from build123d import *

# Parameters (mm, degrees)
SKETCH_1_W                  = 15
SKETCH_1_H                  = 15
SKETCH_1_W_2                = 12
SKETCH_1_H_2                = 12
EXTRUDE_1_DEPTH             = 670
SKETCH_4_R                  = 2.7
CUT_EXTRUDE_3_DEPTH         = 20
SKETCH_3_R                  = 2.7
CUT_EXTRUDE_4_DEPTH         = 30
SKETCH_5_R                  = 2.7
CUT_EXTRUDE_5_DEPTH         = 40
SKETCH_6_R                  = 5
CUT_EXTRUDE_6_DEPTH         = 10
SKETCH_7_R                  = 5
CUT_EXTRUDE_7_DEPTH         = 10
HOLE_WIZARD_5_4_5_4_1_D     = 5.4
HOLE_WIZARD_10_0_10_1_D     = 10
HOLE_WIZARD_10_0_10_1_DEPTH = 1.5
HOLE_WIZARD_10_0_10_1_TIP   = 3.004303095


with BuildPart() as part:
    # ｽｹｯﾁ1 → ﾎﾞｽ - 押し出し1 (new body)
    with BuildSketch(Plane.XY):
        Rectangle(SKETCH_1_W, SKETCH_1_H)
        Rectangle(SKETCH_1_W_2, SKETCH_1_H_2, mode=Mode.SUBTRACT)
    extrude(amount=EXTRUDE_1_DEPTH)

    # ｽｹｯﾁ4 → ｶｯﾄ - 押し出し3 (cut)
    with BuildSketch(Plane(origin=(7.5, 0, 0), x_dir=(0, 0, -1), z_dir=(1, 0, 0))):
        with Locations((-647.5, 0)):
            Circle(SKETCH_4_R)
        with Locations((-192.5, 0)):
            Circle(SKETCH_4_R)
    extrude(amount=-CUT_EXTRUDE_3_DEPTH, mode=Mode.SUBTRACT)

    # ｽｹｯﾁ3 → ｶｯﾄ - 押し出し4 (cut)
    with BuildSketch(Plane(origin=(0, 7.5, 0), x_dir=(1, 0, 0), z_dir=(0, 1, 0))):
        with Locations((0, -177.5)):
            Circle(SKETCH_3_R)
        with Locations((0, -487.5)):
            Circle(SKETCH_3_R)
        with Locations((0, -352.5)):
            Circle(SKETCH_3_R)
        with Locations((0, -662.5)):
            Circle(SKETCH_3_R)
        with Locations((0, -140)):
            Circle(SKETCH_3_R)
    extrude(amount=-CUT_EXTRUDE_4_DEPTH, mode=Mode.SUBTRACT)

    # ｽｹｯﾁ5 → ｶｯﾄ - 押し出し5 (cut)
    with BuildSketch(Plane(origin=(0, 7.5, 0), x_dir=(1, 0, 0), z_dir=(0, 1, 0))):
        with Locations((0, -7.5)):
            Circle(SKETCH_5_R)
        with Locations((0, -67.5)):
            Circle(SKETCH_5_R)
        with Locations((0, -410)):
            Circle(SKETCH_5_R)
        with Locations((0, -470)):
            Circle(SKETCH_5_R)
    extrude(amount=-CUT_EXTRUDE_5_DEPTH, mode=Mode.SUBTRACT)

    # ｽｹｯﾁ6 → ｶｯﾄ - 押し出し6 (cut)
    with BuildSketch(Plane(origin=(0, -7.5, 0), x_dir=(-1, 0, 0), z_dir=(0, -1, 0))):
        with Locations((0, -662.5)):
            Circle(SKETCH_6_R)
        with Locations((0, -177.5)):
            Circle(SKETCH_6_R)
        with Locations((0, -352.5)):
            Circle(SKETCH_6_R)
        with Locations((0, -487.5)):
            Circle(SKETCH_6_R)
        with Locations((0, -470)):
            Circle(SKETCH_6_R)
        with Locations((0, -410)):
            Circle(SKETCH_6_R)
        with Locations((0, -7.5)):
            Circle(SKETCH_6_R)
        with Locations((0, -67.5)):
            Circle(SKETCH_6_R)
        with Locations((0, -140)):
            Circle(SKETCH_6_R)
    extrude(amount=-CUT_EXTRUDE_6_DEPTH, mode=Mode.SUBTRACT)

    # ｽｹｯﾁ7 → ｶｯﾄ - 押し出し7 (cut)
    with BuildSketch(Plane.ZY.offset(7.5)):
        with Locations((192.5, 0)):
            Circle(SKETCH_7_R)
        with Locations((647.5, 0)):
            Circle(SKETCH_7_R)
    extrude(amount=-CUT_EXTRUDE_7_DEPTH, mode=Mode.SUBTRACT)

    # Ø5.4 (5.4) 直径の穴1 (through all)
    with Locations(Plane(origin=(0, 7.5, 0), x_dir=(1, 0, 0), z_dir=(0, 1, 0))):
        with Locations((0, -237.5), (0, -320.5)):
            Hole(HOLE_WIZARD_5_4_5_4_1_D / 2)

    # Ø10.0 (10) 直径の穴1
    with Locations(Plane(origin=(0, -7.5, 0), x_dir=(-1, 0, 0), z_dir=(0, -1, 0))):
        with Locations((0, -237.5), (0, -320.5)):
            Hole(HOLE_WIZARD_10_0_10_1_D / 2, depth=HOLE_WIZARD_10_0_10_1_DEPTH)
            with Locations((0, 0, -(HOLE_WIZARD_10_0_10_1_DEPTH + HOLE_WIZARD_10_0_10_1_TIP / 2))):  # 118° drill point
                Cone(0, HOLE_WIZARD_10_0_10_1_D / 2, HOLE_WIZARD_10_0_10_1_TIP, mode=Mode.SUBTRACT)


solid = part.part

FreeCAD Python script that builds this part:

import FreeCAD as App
import Part
import Sketcher
Q = App.Units.Quantity

doc = App.newDocument("Part")
body = doc.addObject("PartDesign::Body", "Body")

# Sketch on XY plane
sketch1 = body.newObject("Sketcher::SketchObject", "Sketch")
sketch1.AttachmentSupport = (doc.getObject("XY_Plane"), [""])
sketch1.MapMode = "FlatFace"
sketch1.addGeometry(Part.LineSegment(App.Vector(-7.5, 7.5, 0), App.Vector(-7.5, -7.5, 0)), False)
sketch1.addGeometry(Part.LineSegment(App.Vector(-7.5, -7.5, 0), App.Vector(7.5, -7.5, 0)), False)
sketch1.addGeometry(Part.LineSegment(App.Vector(7.5, -7.5, 0), App.Vector(7.5, 7.5, 0)), False)
sketch1.addGeometry(Part.LineSegment(App.Vector(7.5, 7.5, 0), App.Vector(-7.5, 7.5, 0)), False)
sketch1.addGeometry(Part.LineSegment(App.Vector(6, -6, 0), App.Vector(-6, -6, 0)), False)
sketch1.addGeometry(Part.LineSegment(App.Vector(-6, -6, 0), App.Vector(-6, 6, 0)), False)
sketch1.addGeometry(Part.LineSegment(App.Vector(-6, 6, 0), App.Vector(6, 6, 0)), False)
sketch1.addGeometry(Part.LineSegment(App.Vector(6, 6, 0), App.Vector(6, -6, 0)), False)
sketch1.addConstraint(Sketcher.Constraint("Coincident", 0, 2, 1, 1))
sketch1.addConstraint(Sketcher.Constraint("Coincident", 1, 2, 2, 1))
sketch1.addConstraint(Sketcher.Constraint("Coincident", 2, 2, 3, 1))
sketch1.addConstraint(Sketcher.Constraint("Coincident", 3, 2, 0, 1))
sketch1.addConstraint(Sketcher.Constraint("Coincident", 4, 2, 5, 1))
sketch1.addConstraint(Sketcher.Constraint("Coincident", 5, 2, 6, 1))
sketch1.addConstraint(Sketcher.Constraint("Coincident", 6, 2, 7, 1))
sketch1.addConstraint(Sketcher.Constraint("Coincident", 7, 2, 4, 1))
sketch1.addConstraint(Sketcher.Constraint("Vertical", 0))
sketch1.addConstraint(Sketcher.Constraint("Horizontal", 1))
sketch1.addConstraint(Sketcher.Constraint("Vertical", 2))
sketch1.addConstraint(Sketcher.Constraint("Horizontal", 3))
sketch1.addConstraint(Sketcher.Constraint("Horizontal", 4))
sketch1.addConstraint(Sketcher.Constraint("Vertical", 5))
sketch1.addConstraint(Sketcher.Constraint("Horizontal", 6))
sketch1.addConstraint(Sketcher.Constraint("Vertical", 7))
sketch1.addConstraint(Sketcher.Constraint("Symmetric", 0, 2, 2, 2, -1, 1))
sketch1.addConstraint(Sketcher.Constraint("Symmetric", 4, 2, 6, 2, -1, 1))
sketch1.addConstraint(Sketcher.Constraint("Equal", 3, 0))
sketch1.addConstraint(Sketcher.Constraint("Equal", 6, 5))
sketch1.addConstraint(Sketcher.Constraint("DistanceX", 1, 1, 1, 2, Q("15 mm")))
sketch1.addConstraint(Sketcher.Constraint("DistanceX", 4, 2, 4, 1, Q("12 mm")))
pad1 = body.newObject("PartDesign::Pad", "Pad")
pad1.Profile = sketch1
pad1.Length = 670

# Sketch on YZ plane
sketch2 = body.newObject("Sketcher::SketchObject", "Sketch001")
sketch2.AttachmentSupport = (doc.getObject("YZ_Plane"), [""])
sketch2.MapMode = "FlatFace"
sketch2.AttachmentOffset = App.Placement(App.Vector(0, 0, 7.5), App.Rotation())
sketch2.addGeometry(Part.Circle(App.Vector(0, 647.5, 0), App.Vector(0, 0, 1), 2.7), False)
sketch2.addGeometry(Part.Circle(App.Vector(0, 192.5, 0), App.Vector(0, 0, 1), 2.7), False)
sketch2.addConstraint(Sketcher.Constraint("Equal", 0, 1))
sketch2.addConstraint(Sketcher.Constraint("PointOnObject", 0, 3, -2))
sketch2.addConstraint(Sketcher.Constraint("PointOnObject", 1, 3, -2))
sketch2.addConstraint(Sketcher.Constraint("Diameter", 0, Q("5.4 mm")))
sketch2.addConstraint(Sketcher.Constraint("DistanceY", 1, 3, 0, 3, Q("455 mm")))
sketch2.addConstraint(Sketcher.Constraint("DistanceY", -1, 1, 0, 3, Q("647.5 mm")))
pocket1 = body.newObject("PartDesign::Pocket", "Pocket")
pocket1.Profile = sketch2
pocket1.Length = 20

# Sketch on XZ plane
sketch3 = body.newObject("Sketcher::SketchObject", "Sketch002")
sketch3.AttachmentSupport = (doc.getObject("XZ_Plane"), [""])
sketch3.MapMode = "FlatFace"
sketch3.AttachmentOffset = App.Placement(App.Vector(0, 0, -7.5), App.Rotation())
sketch3.addGeometry(Part.Circle(App.Vector(0, 177.5, 0), App.Vector(0, 0, 1), 2.7), False)
sketch3.addGeometry(Part.Circle(App.Vector(0, 487.5, 0), App.Vector(0, 0, 1), 2.7), False)
sketch3.addGeometry(Part.Circle(App.Vector(0, 352.5, 0), App.Vector(0, 0, 1), 2.7), False)
sketch3.addGeometry(Part.Circle(App.Vector(0, 662.5, 0), App.Vector(0, 0, 1), 2.7), False)
sketch3.addGeometry(Part.Circle(App.Vector(0, 140, 0), App.Vector(0, 0, 1), 2.7), False)
sketch3.addConstraint(Sketcher.Constraint("Equal", 0, 1))
sketch3.addConstraint(Sketcher.Constraint("Equal", 1, 2))
sketch3.addConstraint(Sketcher.Constraint("Equal", 2, 3))
sketch3.addConstraint(Sketcher.Constraint("Equal", 3, 4))
sketch3.addConstraint(Sketcher.Constraint("PointOnObject", 0, 3, -2))
sketch3.addConstraint(Sketcher.Constraint("PointOnObject", 1, 3, -2))
sketch3.addConstraint(Sketcher.Constraint("PointOnObject", 2, 3, -2))
sketch3.addConstraint(Sketcher.Constraint("PointOnObject", 3, 3, -2))
sketch3.addConstraint(Sketcher.Constraint("PointOnObject", 4, 3, -2))
sketch3.addConstraint(Sketcher.Constraint("Diameter", 0, Q("5.4 mm")))
sketch3.addConstraint(Sketcher.Constraint("DistanceY", -1, 1, 4, 3, Q("140 mm")))
sketch3.addConstraint(Sketcher.Constraint("DistanceY", 0, 3, 1, 3, Q("310 mm")))
sketch3.addConstraint(Sketcher.Constraint("DistanceY", 2, 3, 1, 3, Q("135 mm")))
sketch3.addConstraint(Sketcher.Constraint("DistanceY", 1, 3, 3, 3, Q("175 mm")))
sketch3.addConstraint(Sketcher.Constraint("DistanceY", -1, 1, 0, 3, Q("177.5 mm")))
pocket2 = body.newObject("PartDesign::Pocket", "Pocket001")
pocket2.Profile = sketch3
pocket2.Length = 30
pocket2.Reversed = True

# Sketch on XZ plane
sketch4 = body.newObject("Sketcher::SketchObject", "Sketch003")
sketch4.AttachmentSupport = (doc.getObject("XZ_Plane"), [""])
sketch4.MapMode = "FlatFace"
sketch4.AttachmentOffset = App.Placement(App.Vector(0, 0, -7.5), App.Rotation())
sketch4.addGeometry(Part.Circle(App.Vector(0, 7.5, 0), App.Vector(0, 0, 1), 2.7), False)
sketch4.addGeometry(Part.Circle(App.Vector(0, 67.5, 0), App.Vector(0, 0, 1), 2.7), False)
sketch4.addGeometry(Part.Circle(App.Vector(0, 410, 0), App.Vector(0, 0, 1), 2.7), False)
sketch4.addGeometry(Part.Circle(App.Vector(0, 470, 0), App.Vector(0, 0, 1), 2.7), False)
sketch4.addConstraint(Sketcher.Constraint("Equal", 0, 1))
sketch4.addConstraint(Sketcher.Constraint("Equal", 1, 2))
sketch4.addConstraint(Sketcher.Constraint("Equal", 2, 3))
sketch4.addConstraint(Sketcher.Constraint("PointOnObject", 0, 3, -2))
sketch4.addConstraint(Sketcher.Constraint("PointOnObject", 1, 3, -2))
sketch4.addConstraint(Sketcher.Constraint("PointOnObject", 2, 3, -2))
sketch4.addConstraint(Sketcher.Constraint("PointOnObject", 3, 3, -2))
sketch4.addConstraint(Sketcher.Constraint("Diameter", 0, Q("5.4 mm")))
sketch4.addConstraint(Sketcher.Constraint("DistanceY", -1, 1, 2, 3, Q("410 mm")))
sketch4.addConstraint(Sketcher.Constraint("DistanceY", -1, 1, 3, 3, Q("470 mm")))
sketch4.addConstraint(Sketcher.Constraint("DistanceY", 0, 3, 1, 3, Q("60 mm")))
sketch4.addConstraint(Sketcher.Constraint("DistanceY", -1, 1, 0, 3, Q("7.5 mm")))
pocket3 = body.newObject("PartDesign::Pocket", "Pocket002")
pocket3.Profile = sketch4
pocket3.Length = 40
pocket3.Reversed = True

# Sketch on XZ plane
sketch5 = body.newObject("Sketcher::SketchObject", "Sketch004")
sketch5.AttachmentSupport = (doc.getObject("XZ_Plane"), [""])
sketch5.MapMode = "FlatFace"
sketch5.AttachmentOffset = App.Placement(App.Vector(0, 0, 7.5), App.Rotation())
sketch5.addGeometry(Part.Circle(App.Vector(0, 662.5, 0), App.Vector(0, 0, 1), 5), False)
sketch5.addGeometry(Part.Circle(App.Vector(0, 177.5, 0), App.Vector(0, 0, 1), 5), False)
sketch5.addGeometry(Part.Circle(App.Vector(0, 352.5, 0), App.Vector(0, 0, 1), 5), False)
sketch5.addGeometry(Part.Circle(App.Vector(0, 487.5, 0), App.Vector(0, 0, 1), 5), False)
sketch5.addGeometry(Part.Circle(App.Vector(0, 470, 0), App.Vector(0, 0, 1), 5), False)
sketch5.addGeometry(Part.Circle(App.Vector(0, 410, 0), App.Vector(0, 0, 1), 5), False)
sketch5.addGeometry(Part.Circle(App.Vector(0, 7.5, 0), App.Vector(0, 0, 1), 5), False)
sketch5.addGeometry(Part.Circle(App.Vector(0, 67.5, 0), App.Vector(0, 0, 1), 5), False)
sketch5.addGeometry(Part.Circle(App.Vector(0, 140, 0), App.Vector(0, 0, 1), 5), False)
sketch5.addConstraint(Sketcher.Constraint("Equal", 0, 1))
sketch5.addConstraint(Sketcher.Constraint("Equal", 1, 2))
sketch5.addConstraint(Sketcher.Constraint("Equal", 2, 3))
sketch5.addConstraint(Sketcher.Constraint("Equal", 3, 4))
sketch5.addConstraint(Sketcher.Constraint("Equal", 4, 5))
sketch5.addConstraint(Sketcher.Constraint("Equal", 5, 6))
sketch5.addConstraint(Sketcher.Constraint("Equal", 6, 7))
sketch5.addConstraint(Sketcher.Constraint("Equal", 7, 8))
sketch5.addConstraint(Sketcher.Constraint("PointOnObject", 0, 3, -2))
sketch5.addConstraint(Sketcher.Constraint("PointOnObject", 1, 3, -2))
sketch5.addConstraint(Sketcher.Constraint("PointOnObject", 2, 3, -2))
sketch5.addConstraint(Sketcher.Constraint("PointOnObject", 3, 3, -2))
sketch5.addConstraint(Sketcher.Constraint("PointOnObject", 4, 3, -2))
sketch5.addConstraint(Sketcher.Constraint("PointOnObject", 5, 3, -2))
sketch5.addConstraint(Sketcher.Constraint("PointOnObject", 6, 3, -2))
sketch5.addConstraint(Sketcher.Constraint("PointOnObject", 7, 3, -2))
sketch5.addConstraint(Sketcher.Constraint("PointOnObject", 8, 3, -2))
sketch5.addConstraint(Sketcher.Constraint("Diameter", 0, Q("10 mm")))
sketch5.addConstraint(Sketcher.Constraint("DistanceY", -1, 1, 4, 3, Q("470 mm")))
sketch5.addConstraint(Sketcher.Constraint("DistanceY", -1, 1, 5, 3, Q("410 mm")))
sketch5.addConstraint(Sketcher.Constraint("DistanceY", -1, 1, 8, 3, Q("140 mm")))
sketch5.addConstraint(Sketcher.Constraint("DistanceY", 1, 3, 0, 3, Q("485 mm")))
sketch5.addConstraint(Sketcher.Constraint("DistanceY", 1, 3, 2, 3, Q("175 mm")))
sketch5.addConstraint(Sketcher.Constraint("DistanceY", 2, 3, 3, 3, Q("135 mm")))
sketch5.addConstraint(Sketcher.Constraint("DistanceY", 6, 3, 1, 3, Q("170 mm")))
sketch5.addConstraint(Sketcher.Constraint("DistanceY", 6, 3, 7, 3, Q("60 mm")))
sketch5.addConstraint(Sketcher.Constraint("DistanceY", -1, 1, 0, 3, Q("662.5 mm")))
pocket4 = body.newObject("PartDesign::Pocket", "Pocket003")
pocket4.Profile = sketch5
pocket4.Length = 10

# Sketch on YZ plane
sketch6 = body.newObject("Sketcher::SketchObject", "Sketch005")
sketch6.AttachmentSupport = (doc.getObject("YZ_Plane"), [""])
sketch6.MapMode = "FlatFace"
sketch6.AttachmentOffset = App.Placement(App.Vector(0, 0, -7.5), App.Rotation())
sketch6.addGeometry(Part.Circle(App.Vector(0, 192.5, 0), App.Vector(0, 0, 1), 5), False)
sketch6.addGeometry(Part.Circle(App.Vector(0, 647.5, 0), App.Vector(0, 0, 1), 5), False)
sketch6.addConstraint(Sketcher.Constraint("Equal", 0, 1))
sketch6.addConstraint(Sketcher.Constraint("PointOnObject", 0, 3, -2))
sketch6.addConstraint(Sketcher.Constraint("PointOnObject", 1, 3, -2))
sketch6.addConstraint(Sketcher.Constraint("Diameter", 0, Q("10 mm")))
sketch6.addConstraint(Sketcher.Constraint("DistanceY", 0, 3, 1, 3, Q("455 mm")))
sketch6.addConstraint(Sketcher.Constraint("DistanceY", -1, 1, 0, 3, Q("192.5 mm")))
pocket5 = body.newObject("PartDesign::Pocket", "Pocket004")
pocket5.Profile = sketch6
pocket5.Length = 10
pocket5.Reversed = True

# Sketch on XZ plane
sketch7 = body.newObject("Sketcher::SketchObject", "Sketch006")
sketch7.AttachmentSupport = (doc.getObject("XZ_Plane"), [""])
sketch7.MapMode = "FlatFace"
sketch7.AttachmentOffset = App.Placement(App.Vector(0, 0, -7.5), App.Rotation())
sketch7.addGeometry(Part.Circle(App.Vector(0, 237.5, 0), App.Vector(0, 0, 1), 2.7), False)
sketch7.addGeometry(Part.Circle(App.Vector(0, 320.5, 0), App.Vector(0, 0, 1), 2.7), False)
sketch7.addConstraint(Sketcher.Constraint("Equal", 0, 1))
sketch7.addConstraint(Sketcher.Constraint("PointOnObject", 0, 3, -2))
sketch7.addConstraint(Sketcher.Constraint("PointOnObject", 1, 3, -2))
sketch7.addConstraint(Sketcher.Constraint("Diameter", 0, Q("5.4 mm")))
sketch7.addConstraint(Sketcher.Constraint("DistanceY", 0, 3, 1, 3, Q("83 mm")))
sketch7.addConstraint(Sketcher.Constraint("DistanceY", -1, 1, 0, 3, Q("237.5 mm")))
doc.recompute()
hole = body.newObject("PartDesign::Hole", "Hole")
hole.Profile = sketch7
hole.ThreadType = "None"
hole.Diameter = 5.4
hole.DepthType = "ThroughAll"
hole.Reversed = True

# Sketch on XZ plane
sketch8 = body.newObject("Sketcher::SketchObject", "Sketch007")
sketch8.AttachmentSupport = (doc.getObject("XZ_Plane"), [""])
sketch8.MapMode = "FlatFace"
sketch8.AttachmentOffset = App.Placement(App.Vector(0, 0, 7.5), App.Rotation())
sketch8.addGeometry(Part.Circle(App.Vector(0, 237.5, 0), App.Vector(0, 0, 1), 5), False)
sketch8.addGeometry(Part.Circle(App.Vector(0, 320.5, 0), App.Vector(0, 0, 1), 5), False)
sketch8.addConstraint(Sketcher.Constraint("Equal", 0, 1))
sketch8.addConstraint(Sketcher.Constraint("PointOnObject", 0, 3, -2))
sketch8.addConstraint(Sketcher.Constraint("PointOnObject", 1, 3, -2))
sketch8.addConstraint(Sketcher.Constraint("Diameter", 0, Q("10 mm")))
sketch8.addConstraint(Sketcher.Constraint("DistanceY", 0, 3, 1, 3, Q("83 mm")))
sketch8.addConstraint(Sketcher.Constraint("DistanceY", -1, 1, 0, 3, Q("237.5 mm")))
doc.recompute()
hole2 = body.newObject("PartDesign::Hole", "Hole001")
hole2.Profile = sketch8
hole2.ThreadType = "None"
hole2.Diameter = 10
hole2.DepthType = "Dimension"
hole2.Depth = 1.5
hole2.DrillPoint = "Angled"
hole2.DrillPointAngle = 118

doc.recompute()
